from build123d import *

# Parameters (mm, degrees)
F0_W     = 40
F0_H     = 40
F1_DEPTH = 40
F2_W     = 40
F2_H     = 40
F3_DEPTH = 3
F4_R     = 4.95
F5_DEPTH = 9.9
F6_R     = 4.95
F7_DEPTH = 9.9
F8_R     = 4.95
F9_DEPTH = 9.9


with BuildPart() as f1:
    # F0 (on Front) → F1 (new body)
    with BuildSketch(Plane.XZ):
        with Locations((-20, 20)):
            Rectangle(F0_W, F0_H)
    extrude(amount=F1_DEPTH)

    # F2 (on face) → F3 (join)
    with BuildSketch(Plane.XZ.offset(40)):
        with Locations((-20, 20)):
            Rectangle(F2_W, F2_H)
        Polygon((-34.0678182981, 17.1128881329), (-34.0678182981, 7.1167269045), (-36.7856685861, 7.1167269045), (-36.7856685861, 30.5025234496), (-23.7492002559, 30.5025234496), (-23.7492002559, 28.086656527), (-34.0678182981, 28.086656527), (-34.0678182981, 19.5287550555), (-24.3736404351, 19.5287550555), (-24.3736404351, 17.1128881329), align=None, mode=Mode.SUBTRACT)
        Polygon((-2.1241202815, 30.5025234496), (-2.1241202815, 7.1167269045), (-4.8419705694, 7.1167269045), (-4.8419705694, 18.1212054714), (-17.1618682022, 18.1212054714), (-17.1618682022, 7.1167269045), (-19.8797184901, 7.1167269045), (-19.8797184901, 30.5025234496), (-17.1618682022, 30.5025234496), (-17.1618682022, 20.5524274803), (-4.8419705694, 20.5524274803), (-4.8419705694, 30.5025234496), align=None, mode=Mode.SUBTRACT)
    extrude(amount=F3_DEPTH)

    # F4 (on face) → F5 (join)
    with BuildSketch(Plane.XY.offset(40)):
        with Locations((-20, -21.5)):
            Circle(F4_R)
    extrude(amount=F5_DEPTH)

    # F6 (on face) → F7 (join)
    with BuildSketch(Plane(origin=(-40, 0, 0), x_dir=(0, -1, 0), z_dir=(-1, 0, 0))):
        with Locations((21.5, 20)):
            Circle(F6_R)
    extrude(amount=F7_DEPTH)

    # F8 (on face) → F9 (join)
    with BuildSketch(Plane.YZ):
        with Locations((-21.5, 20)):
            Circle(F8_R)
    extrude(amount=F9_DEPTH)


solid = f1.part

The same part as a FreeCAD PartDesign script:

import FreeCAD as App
import Part
import Sketcher

V = App.Vector


def add_polygon(sketch, points):
    """Adds a closed chain of lines whose ends are joined by coincident constraints."""
    first, n = sketch.GeometryCount, len(points)
    for a, b in zip(points, points[1:] + points[:1]):
        sketch.addGeometry(Part.LineSegment(App.Vector(*a, 0), App.Vector(*b, 0)), False)
    for i in range(n):
        sketch.addConstraint(Sketcher.Constraint("Coincident", first + i, 2, first + (i + 1) % n, 1))

doc = App.newDocument("Part")
body = doc.addObject("PartDesign::Body", "Body")

sketch1 = doc.addObject("Sketcher::SketchObject", "Sketch")
body.addObject(sketch1)
sketch1.AttachmentSupport = (doc.XZ_Plane, [""])
sketch1.MapMode = "FlatFace"
add_polygon(sketch1, [(-40, 40), (-40, 0), (0, 0), (0, 40)])
sketch1.addConstraint([
    Sketcher.Constraint("Vertical", 0),
    Sketcher.Constraint("Horizontal", 1),
    Sketcher.Constraint("Vertical", 2),
    Sketcher.Constraint("Horizontal", 3),
    Sketcher.Constraint("Coincident", 1, 2, -1, 1),
    Sketcher.Constraint("Equal", 3, 0),
    Sketcher.Constraint("DistanceX", 1, 1, 1, 2, 40.0),
])
pad1 = doc.addObject("PartDesign::Pad", "Pad")
body.addObject(pad1)
pad1.Profile = sketch1
pad1.Length = 40

sketch2 = doc.addObject("Sketcher::SketchObject", "Sketch001")
body.addObject(sketch2)
sketch2.AttachmentSupport = (doc.XZ_Plane, [""])
sketch2.MapMode = "FlatFace"
sketch2.AttachmentOffset = App.Placement(V(0, 0, 40), App.Rotation())
add_polygon(sketch2, [(-40, 40), (-40, 0), (0, 0), (0, 40)])
add_polygon(sketch2, [(-24.37364, 17.112888), (-34.067818, 17.112888), (-34.067818, 7.116727), (-36.785669, 7.116727), (-36.785669, 30.502523), (-23.7492, 30.502523), (-23.7492, 28.086657), (-34.067818, 28.086657), (-34.067818, 19.528755), (-24.37364, 19.528755)])
add_polygon(sketch2, [(-4.841971, 30.502523), (-2.12412, 30.502523), (-2.12412, 7.116727), (-4.841971, 7.116727), (-4.841971, 18.121205), (-17.161868, 18.121205), (-17.161868, 7.116727), (-19.879718, 7.116727), (-19.879718, 30.502523), (-17.161868, 30.502523), (-17.161868, 20.552427), (-4.841971, 20.552427)])
sketch2.addConstraint([
    Sketcher.Constraint("Vertical", 0),
    Sketcher.Constraint("Horizontal", 1),
    Sketcher.Constraint("Vertical", 2),
    Sketcher.Constraint("Horizontal", 3),
    Sketcher.Constraint("Horizontal", 4),
    Sketcher.Constraint("Vertical", 5),
    Sketcher.Constraint("Horizontal", 6),
    Sketcher.Constraint("Vertical", 7),
    Sketcher.Constraint("Horizontal", 8),
    Sketcher.Constraint("Vertical", 9),
    Sketcher.Constraint("Horizontal", 10),
    Sketcher.Constraint("Vertical", 11),
    Sketcher.Constraint("Horizontal", 12),
    Sketcher.Constraint("Vertical", 13),
    Sketcher.Constraint("Horizontal", 14),
    Sketcher.Constraint("Vertical", 15),
    Sketcher.Constraint("Horizontal", 16),
    Sketcher.Constraint("Vertical", 17),
    Sketcher.Constraint("Horizontal", 18),
    Sketcher.Constraint("Vertical", 19),
    Sketcher.Constraint("Horizontal", 20),
    Sketcher.Constraint("Vertical", 21),
    Sketcher.Constraint("Horizontal", 22),
    Sketcher.Constraint("Vertical", 23),
    Sketcher.Constraint("Horizontal", 24),
    Sketcher.Constraint("Vertical", 25),
    Sketcher.Constraint("Coincident", 1, 2, -1, 1),
    Sketcher.Constraint("Horizontal", 8, 2, 14, 2),
    Sketcher.Constraint("Horizontal", 6, 2, 15, 2),
    Sketcher.Constraint("Horizontal", 16, 2, 19, 2),
    Sketcher.Constraint("Horizontal", 14, 2, 21, 2),
    Sketcher.Constraint("Vertical", 5, 2, 10, 2),
    Sketcher.Constraint("Vertical", 19, 2, 22, 2),
    Sketcher.Constraint("Vertical", 17, 2, 24, 2),
    Sketcher.Constraint("Equal", 6, 14),
    Sketcher.Constraint("Equal", 16, 20),
    Sketcher.Constraint("Equal", 3, 0),
    Sketcher.Constraint("Equal", 9, 13),
    Sketcher.Constraint("DistanceX", 1, 1, 1, 2, 40.0),
    Sketcher.Constraint("DistanceY", 11, 2, 11, 1, 8.557901),
    Sketcher.Constraint("DistanceX", 6, 2, 6, 1, 2.71785),
    Sketcher.Constraint("DistanceX", 8, 1, 8, 2, 13.036468),
    Sketcher.Constraint("DistanceY", 5, 2, 5, 1, 9.996161),
    Sketcher.Constraint("DistanceY", 17, 1, 17, 2, 11.004479),
    Sketcher.Constraint("DistanceX", 8, 2, -1, 1, 23.7492),
    Sketcher.Constraint("DistanceX", 5, 2, 20, 2, 14.1881),
    Sketcher.Constraint("DistanceY", 16, 2, 24, 2, 13.435701),
    Sketcher.Constraint("DistanceX", 4, 2, 4, 1, 9.694178),
    Sketcher.Constraint("DistanceX", 18, 2, 18, 1, 12.319898),
    Sketcher.Constraint("DistanceY", 7, 1, 7, 2, 23.385797),
    Sketcher.Constraint("DistanceY", -1, 1, 4, 2, 17.112888),
])
pad2 = doc.addObject("PartDesign::Pad", "Pad001")
body.addObject(pad2)
pad2.Profile = sketch2
pad2.Length = 3

sketch3 = doc.addObject("Sketcher::SketchObject", "Sketch002")
body.addObject(sketch3)
sketch3.AttachmentSupport = (doc.XY_Plane, [""])
sketch3.MapMode = "FlatFace"
sketch3.AttachmentOffset = App.Placement(V(0, 0, 40), App.Rotation())
sketch3.addGeometry(Part.Circle(V(-20, -21.5, 0), V(0, 0, 1), 4.95), False)
sketch3.addConstraint([
    Sketcher.Constraint("Diameter", 0, 9.9),
    Sketcher.Constraint("DistanceX", 0, 3, -1, 1, 20.0),
    Sketcher.Constraint("DistanceY", 0, 3, -1, 1, 21.5),
])
pad3 = doc.addObject("PartDesign::Pad", "Pad002")
body.addObject(pad3)
pad3.Profile = sketch3
pad3.Length = 9.9

sketch4 = doc.addObject("Sketcher::SketchObject", "Sketch003")
body.addObject(sketch4)
sketch4.AttachmentSupport = (doc.YZ_Plane, [""])
sketch4.MapMode = "FlatFace"
sketch4.AttachmentOffset = App.Placement(V(0, 0, -40), App.Rotation())
sketch4.addGeometry(Part.Circle(V(-21.5, 20, 0), V(0, 0, 1), 4.95), False)
sketch4.addConstraint([
    Sketcher.Constraint("Diameter", 0, 9.9),
    Sketcher.Constraint("DistanceY", -1, 1, 0, 3, 20.0),
    Sketcher.Constraint("DistanceX", 0, 3, -1, 1, 21.5),
])
pad4 = doc.addObject("PartDesign::Pad", "Pad003")
body.addObject(pad4)
pad4.Profile = sketch4
pad4.Length = 9.9
pad4.Reversed = True

sketch5 = doc.addObject("Sketcher::SketchObject", "Sketch004")
body.addObject(sketch5)
sketch5.AttachmentSupport = (doc.YZ_Plane, [""])
sketch5.MapMode = "FlatFace"
sketch5.addGeometry(Part.Circle(V(-21.5, 20, 0), V(0, 0, 1), 4.95), False)
sketch5.addConstraint([
    Sketcher.Constraint("Diameter", 0, 9.9),
    Sketcher.Constraint("DistanceY", -1, 1, 0, 3, 20.0),
    Sketcher.Constraint("DistanceX", 0, 3, -1, 1, 21.5),
])
pad5 = doc.addObject("PartDesign::Pad", "Pad004")
body.addObject(pad5)
pad5.Profile = sketch5
pad5.Length = 9.9

doc.recompute()
